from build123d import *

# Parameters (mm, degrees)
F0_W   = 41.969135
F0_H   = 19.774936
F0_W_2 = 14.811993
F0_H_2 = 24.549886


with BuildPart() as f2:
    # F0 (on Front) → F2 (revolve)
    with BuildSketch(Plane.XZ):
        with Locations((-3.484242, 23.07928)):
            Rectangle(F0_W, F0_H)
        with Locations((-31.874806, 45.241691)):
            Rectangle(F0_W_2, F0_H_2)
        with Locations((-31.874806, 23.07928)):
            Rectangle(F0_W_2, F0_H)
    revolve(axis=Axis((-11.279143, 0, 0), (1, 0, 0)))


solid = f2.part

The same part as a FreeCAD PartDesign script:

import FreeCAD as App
import Part
import Sketcher
from FreeCAD import Vector


def add_polygon(sketch, points):
    """Adds a closed chain of lines whose ends are joined by coincident constraints."""
    first, n = sketch.GeometryCount, len(points)
    for a, b in zip(points, points[1:] + points[:1]):
        sketch.addGeometry(Part.LineSegment(App.Vector(*a, 0), App.Vector(*b, 0)), False)
    for i in range(n):
        sketch.addConstraint(Sketcher.Constraint("Coincident", first + i, 2, first + (i + 1) % n, 1))

doc = App.newDocument("Part")
body = doc.addObject("PartDesign::Body", "Body")

# Sketch on XZ plane
sketch1 = body.newObject("Sketcher::SketchObject", "Sketch")
sketch1.AttachmentSupport = (doc.getObject("XZ_Plane"), [""])
sketch1.MapMode = "FlatFace"
add_polygon(sketch1, [(18, 13), (18, 33), (-24, 33), (-24, 58), (-39, 58), (-39, 13)])  # lines 0-5
sketch1.addConstraint(Sketcher.Constraint("Vertical", 0))
sketch1.addConstraint(Sketcher.Constraint("Horizontal", 1))
sketch1.addConstraint(Sketcher.Constraint("Vertical", 2))
sketch1.addConstraint(Sketcher.Constraint("Horizontal", 3))
sketch1.addConstraint(Sketcher.Constraint("Vertical", 4))
sketch1.addConstraint(Sketcher.Constraint("Horizontal", 5))
sketch1.addConstraint(Sketcher.Constraint("DistanceX", 1, 2, 1, 1, 41.969135))
sketch1.addConstraint(Sketcher.Constraint("DistanceX", 3, 2, 3, 1, 14.811993))
sketch1.addConstraint(Sketcher.Constraint("DistanceY", 0, 1, 0, 2, 19.774936))
sketch1.addConstraint(Sketcher.Constraint("DistanceY", 2, 1, 2, 2, 24.549886))
sketch1.addConstraint(Sketcher.Constraint("DistanceY", -1, 1, 0, 2, 32.966748))
sketch1.addConstraint(Sketcher.Constraint("DistanceX", 1, 2, -1, 1, 24.468809))
revolution = body.newObject("PartDesign::Revolution", "Revolution")
revolution.Profile = sketch1
revolution.ReferenceAxis = (sketch1, ["H_Axis"])
revolution.Angle = 360

doc.recompute()
